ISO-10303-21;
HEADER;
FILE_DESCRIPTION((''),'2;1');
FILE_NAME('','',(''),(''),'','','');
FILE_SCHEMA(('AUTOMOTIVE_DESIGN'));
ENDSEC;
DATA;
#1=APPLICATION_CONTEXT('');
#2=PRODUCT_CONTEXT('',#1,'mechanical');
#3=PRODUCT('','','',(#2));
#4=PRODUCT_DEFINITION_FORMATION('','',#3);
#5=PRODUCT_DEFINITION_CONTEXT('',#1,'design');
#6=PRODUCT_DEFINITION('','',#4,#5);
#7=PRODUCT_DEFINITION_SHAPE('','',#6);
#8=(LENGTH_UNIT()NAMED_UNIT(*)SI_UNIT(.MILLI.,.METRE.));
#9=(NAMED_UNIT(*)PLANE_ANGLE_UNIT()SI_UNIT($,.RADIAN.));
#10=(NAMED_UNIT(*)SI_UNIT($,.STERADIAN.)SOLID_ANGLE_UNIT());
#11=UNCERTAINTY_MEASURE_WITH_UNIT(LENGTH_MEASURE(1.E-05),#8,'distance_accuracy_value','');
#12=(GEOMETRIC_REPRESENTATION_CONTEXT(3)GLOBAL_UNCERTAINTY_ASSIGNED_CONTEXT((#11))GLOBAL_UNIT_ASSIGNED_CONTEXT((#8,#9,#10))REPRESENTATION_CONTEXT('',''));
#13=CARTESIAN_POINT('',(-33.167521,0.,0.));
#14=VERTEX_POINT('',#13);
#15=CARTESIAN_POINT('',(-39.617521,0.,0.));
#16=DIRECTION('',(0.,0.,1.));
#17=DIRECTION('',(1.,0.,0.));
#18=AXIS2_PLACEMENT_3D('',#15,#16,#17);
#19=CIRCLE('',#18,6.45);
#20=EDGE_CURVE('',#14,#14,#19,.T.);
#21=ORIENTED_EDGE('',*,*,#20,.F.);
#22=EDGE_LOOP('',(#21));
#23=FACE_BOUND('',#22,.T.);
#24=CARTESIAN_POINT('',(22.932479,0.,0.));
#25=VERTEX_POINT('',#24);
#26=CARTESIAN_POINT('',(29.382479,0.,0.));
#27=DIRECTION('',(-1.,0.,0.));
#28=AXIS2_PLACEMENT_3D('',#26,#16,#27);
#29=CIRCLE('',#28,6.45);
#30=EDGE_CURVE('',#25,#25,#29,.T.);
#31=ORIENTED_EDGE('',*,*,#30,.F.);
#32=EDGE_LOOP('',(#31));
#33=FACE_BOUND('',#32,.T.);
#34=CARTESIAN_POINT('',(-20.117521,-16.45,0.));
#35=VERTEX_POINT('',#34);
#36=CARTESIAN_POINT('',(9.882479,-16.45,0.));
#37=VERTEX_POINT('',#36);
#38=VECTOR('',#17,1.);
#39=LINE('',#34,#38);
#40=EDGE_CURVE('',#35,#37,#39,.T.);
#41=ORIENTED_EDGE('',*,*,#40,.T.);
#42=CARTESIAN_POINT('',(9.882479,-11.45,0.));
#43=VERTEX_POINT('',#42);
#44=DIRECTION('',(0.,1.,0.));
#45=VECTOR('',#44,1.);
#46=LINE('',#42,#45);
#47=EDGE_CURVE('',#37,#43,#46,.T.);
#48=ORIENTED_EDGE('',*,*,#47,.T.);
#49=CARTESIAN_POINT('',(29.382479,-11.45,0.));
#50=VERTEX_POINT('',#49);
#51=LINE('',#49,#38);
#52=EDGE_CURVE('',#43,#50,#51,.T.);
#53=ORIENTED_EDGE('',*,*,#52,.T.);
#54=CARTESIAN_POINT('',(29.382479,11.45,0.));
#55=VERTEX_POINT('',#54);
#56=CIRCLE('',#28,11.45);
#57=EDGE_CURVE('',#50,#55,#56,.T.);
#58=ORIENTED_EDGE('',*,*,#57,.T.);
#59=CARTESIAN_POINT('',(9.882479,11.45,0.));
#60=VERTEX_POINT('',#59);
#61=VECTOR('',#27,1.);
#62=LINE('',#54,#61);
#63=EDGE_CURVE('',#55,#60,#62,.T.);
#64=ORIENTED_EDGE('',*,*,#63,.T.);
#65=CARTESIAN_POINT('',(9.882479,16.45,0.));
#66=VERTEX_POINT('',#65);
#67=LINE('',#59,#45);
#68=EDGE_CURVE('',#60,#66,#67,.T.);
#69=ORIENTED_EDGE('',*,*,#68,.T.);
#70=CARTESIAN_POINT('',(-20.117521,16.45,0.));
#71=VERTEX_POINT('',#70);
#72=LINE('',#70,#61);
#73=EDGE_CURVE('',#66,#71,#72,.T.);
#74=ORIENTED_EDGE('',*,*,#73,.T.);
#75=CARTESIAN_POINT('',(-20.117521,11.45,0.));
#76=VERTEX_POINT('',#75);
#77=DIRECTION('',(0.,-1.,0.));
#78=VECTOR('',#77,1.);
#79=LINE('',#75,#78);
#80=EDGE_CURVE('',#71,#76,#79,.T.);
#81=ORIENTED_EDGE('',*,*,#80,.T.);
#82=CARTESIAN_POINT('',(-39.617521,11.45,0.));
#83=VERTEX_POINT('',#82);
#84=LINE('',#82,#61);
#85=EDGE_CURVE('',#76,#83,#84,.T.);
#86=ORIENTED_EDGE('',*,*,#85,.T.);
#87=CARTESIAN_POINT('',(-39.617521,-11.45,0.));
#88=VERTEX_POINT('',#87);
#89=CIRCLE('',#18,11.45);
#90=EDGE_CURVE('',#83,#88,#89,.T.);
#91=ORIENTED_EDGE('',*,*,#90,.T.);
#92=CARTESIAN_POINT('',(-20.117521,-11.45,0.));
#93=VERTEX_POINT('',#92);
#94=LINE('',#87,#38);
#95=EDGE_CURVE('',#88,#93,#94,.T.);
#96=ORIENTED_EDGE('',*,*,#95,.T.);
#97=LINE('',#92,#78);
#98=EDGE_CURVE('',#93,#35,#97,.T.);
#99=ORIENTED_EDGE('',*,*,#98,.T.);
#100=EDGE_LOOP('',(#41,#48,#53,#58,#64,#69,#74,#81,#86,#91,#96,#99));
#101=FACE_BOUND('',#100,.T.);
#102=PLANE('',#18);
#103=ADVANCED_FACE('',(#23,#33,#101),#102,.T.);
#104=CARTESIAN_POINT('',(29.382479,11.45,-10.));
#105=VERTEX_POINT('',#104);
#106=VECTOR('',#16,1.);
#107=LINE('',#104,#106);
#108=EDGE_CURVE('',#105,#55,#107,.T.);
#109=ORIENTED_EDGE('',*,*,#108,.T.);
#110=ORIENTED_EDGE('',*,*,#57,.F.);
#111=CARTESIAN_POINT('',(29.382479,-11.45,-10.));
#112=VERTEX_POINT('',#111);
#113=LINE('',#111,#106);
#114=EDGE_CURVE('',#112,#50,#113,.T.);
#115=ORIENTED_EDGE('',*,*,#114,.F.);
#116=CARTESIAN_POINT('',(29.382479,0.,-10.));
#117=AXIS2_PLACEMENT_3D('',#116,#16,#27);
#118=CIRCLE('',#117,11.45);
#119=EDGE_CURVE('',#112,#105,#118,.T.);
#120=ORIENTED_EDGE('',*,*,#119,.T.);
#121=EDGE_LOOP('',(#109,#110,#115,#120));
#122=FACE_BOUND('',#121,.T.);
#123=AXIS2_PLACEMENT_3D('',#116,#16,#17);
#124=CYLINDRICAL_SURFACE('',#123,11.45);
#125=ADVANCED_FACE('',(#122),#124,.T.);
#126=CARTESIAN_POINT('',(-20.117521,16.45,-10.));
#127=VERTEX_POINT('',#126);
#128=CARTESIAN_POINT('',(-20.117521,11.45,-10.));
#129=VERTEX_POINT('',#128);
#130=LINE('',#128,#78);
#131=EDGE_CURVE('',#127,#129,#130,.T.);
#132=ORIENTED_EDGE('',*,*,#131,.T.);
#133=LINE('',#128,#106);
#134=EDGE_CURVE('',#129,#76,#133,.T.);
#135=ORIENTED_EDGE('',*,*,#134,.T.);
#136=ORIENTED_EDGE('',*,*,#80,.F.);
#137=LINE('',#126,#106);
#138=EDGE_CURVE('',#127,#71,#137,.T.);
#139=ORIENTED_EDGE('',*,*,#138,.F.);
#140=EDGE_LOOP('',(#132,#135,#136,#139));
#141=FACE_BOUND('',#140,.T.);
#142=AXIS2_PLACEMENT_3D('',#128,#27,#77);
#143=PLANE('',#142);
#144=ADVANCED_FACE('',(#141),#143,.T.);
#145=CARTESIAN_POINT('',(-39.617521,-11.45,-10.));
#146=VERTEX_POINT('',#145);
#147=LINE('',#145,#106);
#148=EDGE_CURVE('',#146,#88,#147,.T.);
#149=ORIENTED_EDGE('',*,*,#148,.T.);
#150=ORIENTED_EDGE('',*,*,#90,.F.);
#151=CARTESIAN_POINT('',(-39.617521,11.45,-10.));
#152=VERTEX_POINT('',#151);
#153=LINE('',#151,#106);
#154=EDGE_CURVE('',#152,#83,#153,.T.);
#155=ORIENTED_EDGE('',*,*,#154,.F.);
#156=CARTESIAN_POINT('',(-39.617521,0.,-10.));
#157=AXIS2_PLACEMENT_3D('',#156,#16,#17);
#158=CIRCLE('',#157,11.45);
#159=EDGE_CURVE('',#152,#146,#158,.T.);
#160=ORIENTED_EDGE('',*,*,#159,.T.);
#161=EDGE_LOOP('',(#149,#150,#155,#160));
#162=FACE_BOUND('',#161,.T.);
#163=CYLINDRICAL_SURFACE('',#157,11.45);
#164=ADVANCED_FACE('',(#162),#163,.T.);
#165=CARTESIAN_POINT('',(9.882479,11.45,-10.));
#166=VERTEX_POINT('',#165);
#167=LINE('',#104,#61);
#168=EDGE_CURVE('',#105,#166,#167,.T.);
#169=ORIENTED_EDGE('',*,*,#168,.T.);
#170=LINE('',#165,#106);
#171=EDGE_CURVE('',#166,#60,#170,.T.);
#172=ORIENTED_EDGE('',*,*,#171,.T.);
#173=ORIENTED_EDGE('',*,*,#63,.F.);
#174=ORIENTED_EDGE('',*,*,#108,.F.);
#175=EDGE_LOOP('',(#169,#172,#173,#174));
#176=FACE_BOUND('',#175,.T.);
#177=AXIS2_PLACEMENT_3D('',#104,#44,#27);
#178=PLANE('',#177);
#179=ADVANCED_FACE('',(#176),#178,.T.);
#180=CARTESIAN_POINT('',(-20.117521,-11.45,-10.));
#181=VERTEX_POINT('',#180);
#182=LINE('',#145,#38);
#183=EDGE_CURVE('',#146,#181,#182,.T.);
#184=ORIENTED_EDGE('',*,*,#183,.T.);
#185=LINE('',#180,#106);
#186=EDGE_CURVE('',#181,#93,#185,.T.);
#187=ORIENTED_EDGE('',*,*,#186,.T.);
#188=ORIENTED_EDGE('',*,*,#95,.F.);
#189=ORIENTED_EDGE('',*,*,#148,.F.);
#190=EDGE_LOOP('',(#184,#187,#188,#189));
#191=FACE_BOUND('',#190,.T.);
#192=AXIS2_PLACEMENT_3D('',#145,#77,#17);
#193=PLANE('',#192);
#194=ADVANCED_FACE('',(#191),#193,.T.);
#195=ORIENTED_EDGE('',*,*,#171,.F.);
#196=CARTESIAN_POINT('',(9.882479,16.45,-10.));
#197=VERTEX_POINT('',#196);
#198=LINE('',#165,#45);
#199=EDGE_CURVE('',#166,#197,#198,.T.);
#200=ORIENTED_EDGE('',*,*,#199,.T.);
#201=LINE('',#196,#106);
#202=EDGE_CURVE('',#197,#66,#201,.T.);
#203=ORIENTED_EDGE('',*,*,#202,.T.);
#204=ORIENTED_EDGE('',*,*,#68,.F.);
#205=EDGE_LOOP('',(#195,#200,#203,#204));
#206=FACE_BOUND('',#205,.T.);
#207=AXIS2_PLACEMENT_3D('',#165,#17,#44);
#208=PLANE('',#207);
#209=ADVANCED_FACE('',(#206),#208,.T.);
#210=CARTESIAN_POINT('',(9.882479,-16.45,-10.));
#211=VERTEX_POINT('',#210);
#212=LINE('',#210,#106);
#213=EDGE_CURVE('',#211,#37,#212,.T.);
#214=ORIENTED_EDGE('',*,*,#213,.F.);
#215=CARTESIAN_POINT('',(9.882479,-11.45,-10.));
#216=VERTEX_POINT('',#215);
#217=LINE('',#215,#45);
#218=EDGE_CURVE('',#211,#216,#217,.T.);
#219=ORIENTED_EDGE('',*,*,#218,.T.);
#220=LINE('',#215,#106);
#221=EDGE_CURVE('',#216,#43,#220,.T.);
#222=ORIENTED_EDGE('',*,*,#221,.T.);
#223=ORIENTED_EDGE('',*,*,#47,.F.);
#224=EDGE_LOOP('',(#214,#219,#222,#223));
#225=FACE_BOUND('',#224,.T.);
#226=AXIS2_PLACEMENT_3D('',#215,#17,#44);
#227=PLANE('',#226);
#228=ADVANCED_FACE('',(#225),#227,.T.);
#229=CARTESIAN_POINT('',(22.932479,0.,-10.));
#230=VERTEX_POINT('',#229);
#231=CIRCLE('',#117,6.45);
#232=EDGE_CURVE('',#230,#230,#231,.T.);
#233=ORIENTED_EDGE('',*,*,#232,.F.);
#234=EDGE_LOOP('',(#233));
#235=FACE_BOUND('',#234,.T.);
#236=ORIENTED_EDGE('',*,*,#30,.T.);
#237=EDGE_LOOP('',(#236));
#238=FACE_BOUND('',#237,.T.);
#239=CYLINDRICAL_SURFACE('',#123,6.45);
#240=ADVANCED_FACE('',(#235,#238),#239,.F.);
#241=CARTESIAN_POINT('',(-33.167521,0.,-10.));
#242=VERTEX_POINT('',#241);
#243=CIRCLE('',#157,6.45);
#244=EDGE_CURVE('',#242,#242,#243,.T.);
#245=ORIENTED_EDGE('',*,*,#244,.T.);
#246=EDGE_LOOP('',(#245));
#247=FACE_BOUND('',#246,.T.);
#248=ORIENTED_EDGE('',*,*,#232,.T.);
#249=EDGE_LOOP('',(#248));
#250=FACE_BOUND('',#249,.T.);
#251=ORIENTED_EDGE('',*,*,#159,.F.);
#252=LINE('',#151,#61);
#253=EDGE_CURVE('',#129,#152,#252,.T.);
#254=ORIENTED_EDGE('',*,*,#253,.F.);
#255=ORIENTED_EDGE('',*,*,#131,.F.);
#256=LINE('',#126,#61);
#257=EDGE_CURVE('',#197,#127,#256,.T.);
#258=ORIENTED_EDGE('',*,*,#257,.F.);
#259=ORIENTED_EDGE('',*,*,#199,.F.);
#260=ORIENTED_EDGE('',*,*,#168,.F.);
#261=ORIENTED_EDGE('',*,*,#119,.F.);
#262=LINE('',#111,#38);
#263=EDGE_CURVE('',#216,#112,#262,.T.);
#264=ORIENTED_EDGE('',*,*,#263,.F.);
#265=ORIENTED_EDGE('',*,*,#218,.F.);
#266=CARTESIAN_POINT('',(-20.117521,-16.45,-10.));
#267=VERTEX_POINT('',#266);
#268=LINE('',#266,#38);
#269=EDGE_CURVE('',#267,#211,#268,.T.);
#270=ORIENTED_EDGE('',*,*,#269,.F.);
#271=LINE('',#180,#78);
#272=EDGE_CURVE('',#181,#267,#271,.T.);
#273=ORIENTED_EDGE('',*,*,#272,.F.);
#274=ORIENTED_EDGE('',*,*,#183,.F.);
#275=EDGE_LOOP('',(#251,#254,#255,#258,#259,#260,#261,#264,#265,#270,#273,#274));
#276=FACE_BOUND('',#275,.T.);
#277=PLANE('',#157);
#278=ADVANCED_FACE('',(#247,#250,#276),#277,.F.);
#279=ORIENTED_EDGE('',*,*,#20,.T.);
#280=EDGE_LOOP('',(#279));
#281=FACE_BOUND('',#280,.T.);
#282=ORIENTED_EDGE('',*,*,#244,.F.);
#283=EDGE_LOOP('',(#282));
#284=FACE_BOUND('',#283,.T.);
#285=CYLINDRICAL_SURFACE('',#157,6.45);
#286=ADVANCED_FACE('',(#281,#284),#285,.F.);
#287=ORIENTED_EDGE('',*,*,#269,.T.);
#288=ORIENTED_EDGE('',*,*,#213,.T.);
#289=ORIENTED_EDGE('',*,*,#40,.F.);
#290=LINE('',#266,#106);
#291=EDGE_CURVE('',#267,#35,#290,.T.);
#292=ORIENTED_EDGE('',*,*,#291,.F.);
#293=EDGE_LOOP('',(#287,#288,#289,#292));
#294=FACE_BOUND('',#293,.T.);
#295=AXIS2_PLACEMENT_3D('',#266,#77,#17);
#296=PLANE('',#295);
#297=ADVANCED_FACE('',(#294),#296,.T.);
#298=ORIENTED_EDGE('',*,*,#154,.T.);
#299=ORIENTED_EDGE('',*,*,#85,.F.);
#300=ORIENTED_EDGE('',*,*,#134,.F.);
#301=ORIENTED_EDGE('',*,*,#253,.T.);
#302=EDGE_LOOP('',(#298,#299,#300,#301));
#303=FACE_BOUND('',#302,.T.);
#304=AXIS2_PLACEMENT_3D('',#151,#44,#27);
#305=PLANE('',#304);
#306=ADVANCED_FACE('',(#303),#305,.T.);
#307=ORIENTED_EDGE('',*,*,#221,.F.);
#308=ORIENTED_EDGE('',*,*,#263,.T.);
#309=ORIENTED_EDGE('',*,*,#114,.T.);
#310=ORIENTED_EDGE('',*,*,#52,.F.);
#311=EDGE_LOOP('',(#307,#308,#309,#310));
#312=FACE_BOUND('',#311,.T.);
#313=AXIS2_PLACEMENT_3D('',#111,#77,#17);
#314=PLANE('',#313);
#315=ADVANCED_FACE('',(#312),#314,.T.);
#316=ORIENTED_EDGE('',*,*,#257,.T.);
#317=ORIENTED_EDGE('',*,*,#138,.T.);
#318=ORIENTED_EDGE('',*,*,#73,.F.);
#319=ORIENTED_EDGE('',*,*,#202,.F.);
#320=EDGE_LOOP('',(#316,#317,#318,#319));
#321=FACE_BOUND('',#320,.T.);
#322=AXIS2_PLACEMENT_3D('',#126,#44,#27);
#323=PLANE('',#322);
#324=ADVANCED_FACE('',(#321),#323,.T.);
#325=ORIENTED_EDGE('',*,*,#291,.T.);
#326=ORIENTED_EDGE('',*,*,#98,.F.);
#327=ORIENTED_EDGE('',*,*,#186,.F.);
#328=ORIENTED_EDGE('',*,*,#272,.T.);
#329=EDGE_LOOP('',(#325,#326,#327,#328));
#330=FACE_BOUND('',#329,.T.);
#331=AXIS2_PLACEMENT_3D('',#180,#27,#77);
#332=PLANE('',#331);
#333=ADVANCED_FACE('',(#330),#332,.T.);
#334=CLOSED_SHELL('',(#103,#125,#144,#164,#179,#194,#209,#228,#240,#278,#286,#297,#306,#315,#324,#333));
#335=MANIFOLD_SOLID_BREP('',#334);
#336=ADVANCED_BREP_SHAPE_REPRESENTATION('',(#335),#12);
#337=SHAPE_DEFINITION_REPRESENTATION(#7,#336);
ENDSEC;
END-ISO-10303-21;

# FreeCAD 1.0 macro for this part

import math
import FreeCAD as App
import Part
import Sketcher
Q = App.Units.Quantity

doc = App.newDocument("Part")
params = doc.addObject("Spreadsheet::Sheet", "Params")
for row, (alias, value) in enumerate([
    ("sketch1_diameter", "12.9 mm"),
    ("sketch1_width", "30 mm"),
    ("sketch1_height", "5 mm"),
    ("sketch1_radius", "11.45 mm"),
    ("sketch1_width2", "19.5 mm"),
    ("pad1_length", "10 mm"),
], start=1):
    params.set(f"A{row}", alias)
    params.set(f"B{row}", "=" + value)
    params.setAlias(f"B{row}", alias)

body = doc.addObject("PartDesign::Body", "Body")

# Sketch on XY plane
sketch1 = body.newObject("Sketcher::SketchObject", "Sketch")
sketch1.AttachmentSupport = (doc.getObject("XY_Plane"), [""])
sketch1.MapMode = "FlatFace"
sketch1.addGeometry(Part.LineSegment(App.Vector(-20, 11, 0), App.Vector(-40, 11, 0)), False)
sketch1.addGeometry(Part.ArcOfCircle(Part.Circle(App.Vector(-40, 0, 0), App.Vector(0, 0, 1), 11), math.radians(90), math.radians(270)), False)
sketch1.addGeometry(Part.LineSegment(App.Vector(-40, -11, 0), App.Vector(-20, -11, 0)), False)
sketch1.addGeometry(Part.LineSegment(App.Vector(-20, -11, 0), App.Vector(-20, -16, 0)), False)
sketch1.addGeometry(Part.LineSegment(App.Vector(-20, -16, 0), App.Vector(10, -16, 0)), False)
sketch1.addGeometry(Part.LineSegment(App.Vector(10, -16, 0), App.Vector(10, -11, 0)), False)
sketch1.addGeometry(Part.LineSegment(App.Vector(10, -11, 0), App.Vector(29, -11, 0)), False)
sketch1.addGeometry(Part.ArcOfCircle(Part.Circle(App.Vector(29, 0, 0), App.Vector(0, 0, 1), 11), math.radians(-90), math.radians(90)), False)
sketch1.addGeometry(Part.LineSegment(App.Vector(29, 11, 0), App.Vector(10, 11, 0)), False)
sketch1.addGeometry(Part.LineSegment(App.Vector(10, 11, 0), App.Vector(10, 16, 0)), False)
sketch1.addGeometry(Part.LineSegment(App.Vector(10, 16, 0), App.Vector(-20, 16, 0)), False)
sketch1.addGeometry(Part.LineSegment(App.Vector(-20, 16, 0), App.Vector(-20, 11, 0)), False)
sketch1.addGeometry(Part.Circle(App.Vector(29, 0, 0), App.Vector(0, 0, 1), 6), False)
sketch1.addGeometry(Part.Circle(App.Vector(-40, 0, 0), App.Vector(0, 0, 1), 6), False)
sketch1.addConstraint(Sketcher.Constraint("Tangent", 0, 2, 1, 1))
sketch1.addConstraint(Sketcher.Constraint("Tangent", 1, 2, 2, 1))
sketch1.addConstraint(Sketcher.Constraint("Coincident", 2, 2, 3, 1))
sketch1.addConstraint(Sketcher.Constraint("Coincident", 3, 2, 4, 1))
sketch1.addConstraint(Sketcher.Constraint("Coincident", 4, 2, 5, 1))
sketch1.addConstraint(Sketcher.Constraint("Coincident", 5, 2, 6, 1))
sketch1.addConstraint(Sketcher.Constraint("Tangent", 6, 2, 7, 1))
sketch1.addConstraint(Sketcher.Constraint("Tangent", 7, 2, 8, 1))
sketch1.addConstraint(Sketcher.Constraint("Coincident", 8, 2, 9, 1))
sketch1.addConstraint(Sketcher.Constraint("Coincident", 9, 2, 10, 1))
sketch1.addConstraint(Sketcher.Constraint("Coincident", 10, 2, 11, 1))
sketch1.addConstraint(Sketcher.Constraint("Coincident", 11, 2, 0, 1))
sketch1.addConstraint(Sketcher.Constraint("Horizontal", 0))
sketch1.addConstraint(Sketcher.Constraint("Horizontal", 2))
sketch1.addConstraint(Sketcher.Constraint("Vertical", 3))
sketch1.addConstraint(Sketcher.Constraint("Horizontal", 4))
sketch1.addConstraint(Sketcher.Constraint("Vertical", 5))
sketch1.addConstraint(Sketcher.Constraint("Horizontal", 6))
sketch1.addConstraint(Sketcher.Constraint("Horizontal", 8))
sketch1.addConstraint(Sketcher.Constraint("Vertical", 9))
sketch1.addConstraint(Sketcher.Constraint("Horizontal", 10))
sketch1.addConstraint(Sketcher.Constraint("Vertical", 11))
sketch1.addConstraint(Sketcher.Constraint("Coincident", 12, 3, 7, 3))
sketch1.addConstraint(Sketcher.Constraint("Coincident", 13, 3, 1, 3))
sketch1.addConstraint(Sketcher.Constraint("Equal", 1, 7))
sketch1.addConstraint(Sketcher.Constraint("Equal", 12, 13))
sketch1.addConstraint(Sketcher.Constraint("Symmetric", 5, 2, 8, 2, -1))
sketch1.addConstraint(Sketcher.Constraint("Symmetric", 3, 2, 10, 2, -1))
sketch1.addConstraint(Sketcher.Constraint("PointOnObject", 1, 3, -1))
sketch1.addConstraint(Sketcher.Constraint("Equal", 2, 6))
sketch1.addConstraint(Sketcher.Constraint("Diameter", 12, Q("12.9 mm")))
sketch1.addConstraint(Sketcher.Constraint("DistanceX", 4, 1, 4, 2, Q("30 mm")))
sketch1.addConstraint(Sketcher.Constraint("DistanceY", 3, 2, 3, 1, Q("5 mm")))
sketch1.addConstraint(Sketcher.Constraint("Radius", 1, Q("11.45 mm")))
sketch1.addConstraint(Sketcher.Constraint("DistanceX", 0, 2, 0, 1, Q("19.5 mm")))
sketch1.addConstraint(Sketcher.Constraint("DistanceX", 1, 3, -1, 1, Q("39.617521 mm")))
sketch1.setExpression("Constraints[30]", "Params.sketch1_diameter")
sketch1.setExpression("Constraints[31]", "Params.sketch1_width")
sketch1.setExpression("Constraints[32]", "Params.sketch1_height")
sketch1.setExpression("Constraints[33]", "Params.sketch1_radius")
sketch1.setExpression("Constraints[34]", "Params.sketch1_width2")
pad1 = body.newObject("PartDesign::Pad", "Pad")
pad1.Profile = sketch1
pad1.setExpression("Length", "Params.pad1_length")
pad1.Reversed = True

doc.recompute()
